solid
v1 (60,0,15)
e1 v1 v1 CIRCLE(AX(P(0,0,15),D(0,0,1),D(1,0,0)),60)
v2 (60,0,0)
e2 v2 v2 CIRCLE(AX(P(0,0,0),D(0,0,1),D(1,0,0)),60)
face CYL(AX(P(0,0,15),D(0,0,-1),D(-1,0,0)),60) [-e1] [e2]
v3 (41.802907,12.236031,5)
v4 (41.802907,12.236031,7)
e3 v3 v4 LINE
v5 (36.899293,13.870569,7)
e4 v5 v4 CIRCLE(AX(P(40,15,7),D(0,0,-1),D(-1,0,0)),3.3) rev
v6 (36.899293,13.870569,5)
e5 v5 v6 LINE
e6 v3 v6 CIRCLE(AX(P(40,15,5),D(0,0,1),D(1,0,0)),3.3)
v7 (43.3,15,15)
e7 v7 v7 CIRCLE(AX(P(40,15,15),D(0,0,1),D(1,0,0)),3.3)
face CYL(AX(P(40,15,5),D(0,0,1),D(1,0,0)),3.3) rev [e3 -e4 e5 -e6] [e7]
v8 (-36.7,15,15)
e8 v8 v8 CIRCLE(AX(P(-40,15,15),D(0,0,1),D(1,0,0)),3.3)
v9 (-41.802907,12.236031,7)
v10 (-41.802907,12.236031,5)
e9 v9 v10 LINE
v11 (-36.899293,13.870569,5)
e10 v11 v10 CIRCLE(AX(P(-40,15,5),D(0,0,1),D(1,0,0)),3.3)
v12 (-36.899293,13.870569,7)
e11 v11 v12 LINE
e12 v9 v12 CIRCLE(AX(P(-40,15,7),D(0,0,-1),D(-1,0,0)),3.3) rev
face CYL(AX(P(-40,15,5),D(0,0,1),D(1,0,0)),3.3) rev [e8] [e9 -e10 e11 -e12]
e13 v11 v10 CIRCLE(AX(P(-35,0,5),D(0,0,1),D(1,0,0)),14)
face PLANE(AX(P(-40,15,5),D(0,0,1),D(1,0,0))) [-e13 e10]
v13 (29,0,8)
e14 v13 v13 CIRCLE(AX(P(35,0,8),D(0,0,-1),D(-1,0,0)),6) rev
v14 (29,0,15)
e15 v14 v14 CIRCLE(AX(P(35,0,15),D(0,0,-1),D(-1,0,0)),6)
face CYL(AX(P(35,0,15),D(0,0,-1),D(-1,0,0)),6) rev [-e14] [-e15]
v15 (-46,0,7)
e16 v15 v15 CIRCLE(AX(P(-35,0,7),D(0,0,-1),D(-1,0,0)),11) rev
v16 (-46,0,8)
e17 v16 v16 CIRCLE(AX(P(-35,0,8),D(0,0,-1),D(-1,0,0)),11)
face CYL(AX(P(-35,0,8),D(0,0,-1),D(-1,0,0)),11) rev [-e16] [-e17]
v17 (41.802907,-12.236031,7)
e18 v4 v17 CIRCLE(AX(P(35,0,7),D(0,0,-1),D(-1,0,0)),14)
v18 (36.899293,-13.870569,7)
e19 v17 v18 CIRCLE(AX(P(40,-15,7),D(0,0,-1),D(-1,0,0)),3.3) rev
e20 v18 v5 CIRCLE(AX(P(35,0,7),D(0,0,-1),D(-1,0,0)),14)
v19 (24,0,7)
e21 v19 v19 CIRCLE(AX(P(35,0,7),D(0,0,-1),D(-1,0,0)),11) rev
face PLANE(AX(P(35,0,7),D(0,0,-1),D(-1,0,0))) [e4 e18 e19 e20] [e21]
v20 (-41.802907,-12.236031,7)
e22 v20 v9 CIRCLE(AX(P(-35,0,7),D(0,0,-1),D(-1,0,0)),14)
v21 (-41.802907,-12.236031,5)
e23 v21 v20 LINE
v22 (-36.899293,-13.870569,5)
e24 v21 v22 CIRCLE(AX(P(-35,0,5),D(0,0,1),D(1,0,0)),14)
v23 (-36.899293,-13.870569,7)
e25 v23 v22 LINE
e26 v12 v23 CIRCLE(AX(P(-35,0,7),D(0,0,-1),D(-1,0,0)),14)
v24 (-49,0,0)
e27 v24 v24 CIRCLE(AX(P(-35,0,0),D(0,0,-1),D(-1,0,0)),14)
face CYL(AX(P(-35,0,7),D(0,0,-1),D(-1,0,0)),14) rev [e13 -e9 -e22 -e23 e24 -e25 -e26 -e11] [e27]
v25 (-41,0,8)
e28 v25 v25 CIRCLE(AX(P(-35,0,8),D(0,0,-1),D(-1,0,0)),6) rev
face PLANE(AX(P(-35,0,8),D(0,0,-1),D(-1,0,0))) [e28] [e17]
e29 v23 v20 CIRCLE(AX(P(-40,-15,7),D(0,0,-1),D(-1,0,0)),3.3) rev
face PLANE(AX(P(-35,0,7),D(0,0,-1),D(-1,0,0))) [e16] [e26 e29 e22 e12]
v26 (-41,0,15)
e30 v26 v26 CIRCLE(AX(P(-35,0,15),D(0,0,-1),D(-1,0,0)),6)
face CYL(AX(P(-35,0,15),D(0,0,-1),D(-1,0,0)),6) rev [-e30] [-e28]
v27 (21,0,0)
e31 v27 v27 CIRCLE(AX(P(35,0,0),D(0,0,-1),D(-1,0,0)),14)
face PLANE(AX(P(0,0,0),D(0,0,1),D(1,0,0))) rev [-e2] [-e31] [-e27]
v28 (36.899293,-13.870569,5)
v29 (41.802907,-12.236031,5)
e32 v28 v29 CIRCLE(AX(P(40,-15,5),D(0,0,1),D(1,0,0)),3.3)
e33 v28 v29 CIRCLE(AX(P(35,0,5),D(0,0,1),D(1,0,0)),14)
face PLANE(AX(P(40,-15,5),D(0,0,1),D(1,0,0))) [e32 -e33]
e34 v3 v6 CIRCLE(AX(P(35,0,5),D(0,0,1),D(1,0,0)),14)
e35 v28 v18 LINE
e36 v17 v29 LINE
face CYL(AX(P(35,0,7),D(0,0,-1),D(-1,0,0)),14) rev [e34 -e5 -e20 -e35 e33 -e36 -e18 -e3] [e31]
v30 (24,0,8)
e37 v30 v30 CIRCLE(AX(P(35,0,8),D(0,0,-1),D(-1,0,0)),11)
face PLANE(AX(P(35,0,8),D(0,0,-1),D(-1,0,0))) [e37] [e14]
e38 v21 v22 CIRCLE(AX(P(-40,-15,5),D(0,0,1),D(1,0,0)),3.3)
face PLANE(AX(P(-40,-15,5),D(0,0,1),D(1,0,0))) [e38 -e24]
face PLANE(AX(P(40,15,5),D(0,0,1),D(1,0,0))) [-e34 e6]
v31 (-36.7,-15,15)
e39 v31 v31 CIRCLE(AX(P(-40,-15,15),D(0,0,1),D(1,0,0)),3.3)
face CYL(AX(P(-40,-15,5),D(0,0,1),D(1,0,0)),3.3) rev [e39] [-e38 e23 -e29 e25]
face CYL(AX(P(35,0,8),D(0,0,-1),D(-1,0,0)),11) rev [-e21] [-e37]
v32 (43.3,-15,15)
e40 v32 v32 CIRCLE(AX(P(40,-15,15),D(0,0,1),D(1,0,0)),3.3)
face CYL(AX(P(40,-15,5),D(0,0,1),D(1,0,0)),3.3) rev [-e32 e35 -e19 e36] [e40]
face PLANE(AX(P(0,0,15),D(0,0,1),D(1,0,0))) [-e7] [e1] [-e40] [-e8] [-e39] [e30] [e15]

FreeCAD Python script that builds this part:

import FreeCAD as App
import Part
import Sketcher

V = App.Vector

doc = App.newDocument("Part")
body = doc.addObject("PartDesign::Body", "Body")

# Sketch on XY plane
sketch1 = doc.addObject("Sketcher::SketchObject", "Sketch")
body.addObject(sketch1)
sketch1.AttachmentSupport = (doc.XY_Plane, [""])
sketch1.MapMode = "FlatFace"
sketch1.addGeometry(Part.Circle(V(0, 0, 0), V(0, 0, 1), 60), False)
sketch1.addConstraint([
    Sketcher.Constraint("Coincident", 0, 3, -1, 1),
    Sketcher.Constraint("Diameter", 0, 120.0),
])
pad1 = doc.addObject("PartDesign::Pad", "Pad")
body.addObject(pad1)
pad1.Profile = sketch1
pad1.Length = 15

# Sketch on XY plane
sketch2 = doc.addObject("Sketcher::SketchObject", "Sketch001")
body.addObject(sketch2)
sketch2.AttachmentSupport = (doc.XY_Plane, [""])
sketch2.MapMode = "FlatFace"
sketch2.addGeometry([
    Part.Circle(V(35, 0, 0), V(0, 0, 1), 6),
    Part.Circle(V(-35, 0, 0), V(0, 0, 1), 6),
], False)
sketch2.addConstraint([
    Sketcher.Constraint("Equal", 0, 1),
    Sketcher.Constraint("Symmetric", 0, 3, 1, 3, -1, 1),
    Sketcher.Constraint("PointOnObject", 0, 3, -1),
    Sketcher.Constraint("Diameter", 0, 12.0),
    Sketcher.Constraint("DistanceX", -1, 1, 0, 3, 35.0),
])
pocket1 = doc.addObject("PartDesign::Pocket", "Pocket")
body.addObject(pocket1)
pocket1.Profile = sketch2
pocket1.Type = "ThroughAll"
pocket1.Reversed = True

# Sketch on XY plane
sketch3 = doc.addObject("Sketcher::SketchObject", "Sketch002")
body.addObject(sketch3)
sketch3.AttachmentSupport = (doc.XY_Plane, [""])
sketch3.MapMode = "FlatFace"
sketch3.addGeometry([
    Part.Circle(V(-35, 0, 0), V(0, 0, 1), 11),
    Part.Circle(V(35, 0, 0), V(0, 0, 1), 11),
], False)
sketch3.addConstraint([
    Sketcher.Constraint("Equal", 0, 1),
    Sketcher.Constraint("Symmetric", 0, 3, 1, 3, -1, 1),
    Sketcher.Constraint("PointOnObject", 0, 3, -1),
    Sketcher.Constraint("Diameter", 0, 22.0),
    Sketcher.Constraint("DistanceX", 0, 3, -1, 1, 35.0),
])
pocket2 = doc.addObject("PartDesign::Pocket", "Pocket001")
body.addObject(pocket2)
pocket2.Profile = sketch3
pocket2.Length = 8
pocket2.Reversed = True

# Sketch on XY plane
sketch4 = doc.addObject("Sketcher::SketchObject", "Sketch003")
body.addObject(sketch4)
sketch4.AttachmentSupport = (doc.XY_Plane, [""])
sketch4.MapMode = "FlatFace"
sketch4.AttachmentOffset = App.Placement(V(0, 0, 15), App.Rotation())
sketch4.addGeometry([
    Part.Circle(V(40, 15, 0), V(0, 0, 1), 3.3),
    Part.Circle(V(40, -15, 0), V(0, 0, 1), 3.3),
    Part.Circle(V(-40, -15, 0), V(0, 0, 1), 3.3),
    Part.Circle(V(-40, 15, 0), V(0, 0, 1), 3.3),
], False)
sketch4.addConstraint([
    Sketcher.Constraint("Equal", 0, 1),
    Sketcher.Constraint("Equal", 1, 2),
    Sketcher.Constraint("Equal", 2, 3),
    Sketcher.Constraint("Symmetric", 0, 3, 2, 3, -1, 1),
    Sketcher.Constraint("Symmetric", 1, 3, 3, 3, -1, 1),
    Sketcher.Constraint("Symmetric", 1, 3, 2, 3, -2),
    Sketcher.Constraint("Diameter", 0, 6.6),
    Sketcher.Constraint("DistanceX", -1, 1, 0, 3, 40.0),
    Sketcher.Constraint("DistanceY", -1, 1, 0, 3, 15.0),
])
pocket3 = doc.addObject("PartDesign::Pocket", "Pocket002")
body.addObject(pocket3)
pocket3.Profile = sketch4
pocket3.Length = 10

# Sketch on XY plane
sketch5 = doc.addObject("Sketcher::SketchObject", "Sketch004")
body.addObject(sketch5)
sketch5.AttachmentSupport = (doc.XY_Plane, [""])
sketch5.MapMode = "FlatFace"
sketch5.addGeometry([
    Part.Circle(V(-35, 0, 0), V(0, 0, 1), 14),
    Part.Circle(V(35, 0, 0), V(0, 0, 1), 14),
], False)
sketch5.addConstraint([
    Sketcher.Constraint("Equal", 0, 1),
    Sketcher.Constraint("Symmetric", 0, 3, 1, 3, -1, 1),
    Sketcher.Constraint("PointOnObject", 0, 3, -1),
    Sketcher.Constraint("Diameter", 0, 28.0),
    Sketcher.Constraint("DistanceX", 0, 3, -1, 1, 35.0),
])
pocket4 = doc.addObject("PartDesign::Pocket", "Pocket003")
body.addObject(pocket4)
pocket4.Profile = sketch5
pocket4.Length = 7
pocket4.Reversed = True

doc.recompute()
